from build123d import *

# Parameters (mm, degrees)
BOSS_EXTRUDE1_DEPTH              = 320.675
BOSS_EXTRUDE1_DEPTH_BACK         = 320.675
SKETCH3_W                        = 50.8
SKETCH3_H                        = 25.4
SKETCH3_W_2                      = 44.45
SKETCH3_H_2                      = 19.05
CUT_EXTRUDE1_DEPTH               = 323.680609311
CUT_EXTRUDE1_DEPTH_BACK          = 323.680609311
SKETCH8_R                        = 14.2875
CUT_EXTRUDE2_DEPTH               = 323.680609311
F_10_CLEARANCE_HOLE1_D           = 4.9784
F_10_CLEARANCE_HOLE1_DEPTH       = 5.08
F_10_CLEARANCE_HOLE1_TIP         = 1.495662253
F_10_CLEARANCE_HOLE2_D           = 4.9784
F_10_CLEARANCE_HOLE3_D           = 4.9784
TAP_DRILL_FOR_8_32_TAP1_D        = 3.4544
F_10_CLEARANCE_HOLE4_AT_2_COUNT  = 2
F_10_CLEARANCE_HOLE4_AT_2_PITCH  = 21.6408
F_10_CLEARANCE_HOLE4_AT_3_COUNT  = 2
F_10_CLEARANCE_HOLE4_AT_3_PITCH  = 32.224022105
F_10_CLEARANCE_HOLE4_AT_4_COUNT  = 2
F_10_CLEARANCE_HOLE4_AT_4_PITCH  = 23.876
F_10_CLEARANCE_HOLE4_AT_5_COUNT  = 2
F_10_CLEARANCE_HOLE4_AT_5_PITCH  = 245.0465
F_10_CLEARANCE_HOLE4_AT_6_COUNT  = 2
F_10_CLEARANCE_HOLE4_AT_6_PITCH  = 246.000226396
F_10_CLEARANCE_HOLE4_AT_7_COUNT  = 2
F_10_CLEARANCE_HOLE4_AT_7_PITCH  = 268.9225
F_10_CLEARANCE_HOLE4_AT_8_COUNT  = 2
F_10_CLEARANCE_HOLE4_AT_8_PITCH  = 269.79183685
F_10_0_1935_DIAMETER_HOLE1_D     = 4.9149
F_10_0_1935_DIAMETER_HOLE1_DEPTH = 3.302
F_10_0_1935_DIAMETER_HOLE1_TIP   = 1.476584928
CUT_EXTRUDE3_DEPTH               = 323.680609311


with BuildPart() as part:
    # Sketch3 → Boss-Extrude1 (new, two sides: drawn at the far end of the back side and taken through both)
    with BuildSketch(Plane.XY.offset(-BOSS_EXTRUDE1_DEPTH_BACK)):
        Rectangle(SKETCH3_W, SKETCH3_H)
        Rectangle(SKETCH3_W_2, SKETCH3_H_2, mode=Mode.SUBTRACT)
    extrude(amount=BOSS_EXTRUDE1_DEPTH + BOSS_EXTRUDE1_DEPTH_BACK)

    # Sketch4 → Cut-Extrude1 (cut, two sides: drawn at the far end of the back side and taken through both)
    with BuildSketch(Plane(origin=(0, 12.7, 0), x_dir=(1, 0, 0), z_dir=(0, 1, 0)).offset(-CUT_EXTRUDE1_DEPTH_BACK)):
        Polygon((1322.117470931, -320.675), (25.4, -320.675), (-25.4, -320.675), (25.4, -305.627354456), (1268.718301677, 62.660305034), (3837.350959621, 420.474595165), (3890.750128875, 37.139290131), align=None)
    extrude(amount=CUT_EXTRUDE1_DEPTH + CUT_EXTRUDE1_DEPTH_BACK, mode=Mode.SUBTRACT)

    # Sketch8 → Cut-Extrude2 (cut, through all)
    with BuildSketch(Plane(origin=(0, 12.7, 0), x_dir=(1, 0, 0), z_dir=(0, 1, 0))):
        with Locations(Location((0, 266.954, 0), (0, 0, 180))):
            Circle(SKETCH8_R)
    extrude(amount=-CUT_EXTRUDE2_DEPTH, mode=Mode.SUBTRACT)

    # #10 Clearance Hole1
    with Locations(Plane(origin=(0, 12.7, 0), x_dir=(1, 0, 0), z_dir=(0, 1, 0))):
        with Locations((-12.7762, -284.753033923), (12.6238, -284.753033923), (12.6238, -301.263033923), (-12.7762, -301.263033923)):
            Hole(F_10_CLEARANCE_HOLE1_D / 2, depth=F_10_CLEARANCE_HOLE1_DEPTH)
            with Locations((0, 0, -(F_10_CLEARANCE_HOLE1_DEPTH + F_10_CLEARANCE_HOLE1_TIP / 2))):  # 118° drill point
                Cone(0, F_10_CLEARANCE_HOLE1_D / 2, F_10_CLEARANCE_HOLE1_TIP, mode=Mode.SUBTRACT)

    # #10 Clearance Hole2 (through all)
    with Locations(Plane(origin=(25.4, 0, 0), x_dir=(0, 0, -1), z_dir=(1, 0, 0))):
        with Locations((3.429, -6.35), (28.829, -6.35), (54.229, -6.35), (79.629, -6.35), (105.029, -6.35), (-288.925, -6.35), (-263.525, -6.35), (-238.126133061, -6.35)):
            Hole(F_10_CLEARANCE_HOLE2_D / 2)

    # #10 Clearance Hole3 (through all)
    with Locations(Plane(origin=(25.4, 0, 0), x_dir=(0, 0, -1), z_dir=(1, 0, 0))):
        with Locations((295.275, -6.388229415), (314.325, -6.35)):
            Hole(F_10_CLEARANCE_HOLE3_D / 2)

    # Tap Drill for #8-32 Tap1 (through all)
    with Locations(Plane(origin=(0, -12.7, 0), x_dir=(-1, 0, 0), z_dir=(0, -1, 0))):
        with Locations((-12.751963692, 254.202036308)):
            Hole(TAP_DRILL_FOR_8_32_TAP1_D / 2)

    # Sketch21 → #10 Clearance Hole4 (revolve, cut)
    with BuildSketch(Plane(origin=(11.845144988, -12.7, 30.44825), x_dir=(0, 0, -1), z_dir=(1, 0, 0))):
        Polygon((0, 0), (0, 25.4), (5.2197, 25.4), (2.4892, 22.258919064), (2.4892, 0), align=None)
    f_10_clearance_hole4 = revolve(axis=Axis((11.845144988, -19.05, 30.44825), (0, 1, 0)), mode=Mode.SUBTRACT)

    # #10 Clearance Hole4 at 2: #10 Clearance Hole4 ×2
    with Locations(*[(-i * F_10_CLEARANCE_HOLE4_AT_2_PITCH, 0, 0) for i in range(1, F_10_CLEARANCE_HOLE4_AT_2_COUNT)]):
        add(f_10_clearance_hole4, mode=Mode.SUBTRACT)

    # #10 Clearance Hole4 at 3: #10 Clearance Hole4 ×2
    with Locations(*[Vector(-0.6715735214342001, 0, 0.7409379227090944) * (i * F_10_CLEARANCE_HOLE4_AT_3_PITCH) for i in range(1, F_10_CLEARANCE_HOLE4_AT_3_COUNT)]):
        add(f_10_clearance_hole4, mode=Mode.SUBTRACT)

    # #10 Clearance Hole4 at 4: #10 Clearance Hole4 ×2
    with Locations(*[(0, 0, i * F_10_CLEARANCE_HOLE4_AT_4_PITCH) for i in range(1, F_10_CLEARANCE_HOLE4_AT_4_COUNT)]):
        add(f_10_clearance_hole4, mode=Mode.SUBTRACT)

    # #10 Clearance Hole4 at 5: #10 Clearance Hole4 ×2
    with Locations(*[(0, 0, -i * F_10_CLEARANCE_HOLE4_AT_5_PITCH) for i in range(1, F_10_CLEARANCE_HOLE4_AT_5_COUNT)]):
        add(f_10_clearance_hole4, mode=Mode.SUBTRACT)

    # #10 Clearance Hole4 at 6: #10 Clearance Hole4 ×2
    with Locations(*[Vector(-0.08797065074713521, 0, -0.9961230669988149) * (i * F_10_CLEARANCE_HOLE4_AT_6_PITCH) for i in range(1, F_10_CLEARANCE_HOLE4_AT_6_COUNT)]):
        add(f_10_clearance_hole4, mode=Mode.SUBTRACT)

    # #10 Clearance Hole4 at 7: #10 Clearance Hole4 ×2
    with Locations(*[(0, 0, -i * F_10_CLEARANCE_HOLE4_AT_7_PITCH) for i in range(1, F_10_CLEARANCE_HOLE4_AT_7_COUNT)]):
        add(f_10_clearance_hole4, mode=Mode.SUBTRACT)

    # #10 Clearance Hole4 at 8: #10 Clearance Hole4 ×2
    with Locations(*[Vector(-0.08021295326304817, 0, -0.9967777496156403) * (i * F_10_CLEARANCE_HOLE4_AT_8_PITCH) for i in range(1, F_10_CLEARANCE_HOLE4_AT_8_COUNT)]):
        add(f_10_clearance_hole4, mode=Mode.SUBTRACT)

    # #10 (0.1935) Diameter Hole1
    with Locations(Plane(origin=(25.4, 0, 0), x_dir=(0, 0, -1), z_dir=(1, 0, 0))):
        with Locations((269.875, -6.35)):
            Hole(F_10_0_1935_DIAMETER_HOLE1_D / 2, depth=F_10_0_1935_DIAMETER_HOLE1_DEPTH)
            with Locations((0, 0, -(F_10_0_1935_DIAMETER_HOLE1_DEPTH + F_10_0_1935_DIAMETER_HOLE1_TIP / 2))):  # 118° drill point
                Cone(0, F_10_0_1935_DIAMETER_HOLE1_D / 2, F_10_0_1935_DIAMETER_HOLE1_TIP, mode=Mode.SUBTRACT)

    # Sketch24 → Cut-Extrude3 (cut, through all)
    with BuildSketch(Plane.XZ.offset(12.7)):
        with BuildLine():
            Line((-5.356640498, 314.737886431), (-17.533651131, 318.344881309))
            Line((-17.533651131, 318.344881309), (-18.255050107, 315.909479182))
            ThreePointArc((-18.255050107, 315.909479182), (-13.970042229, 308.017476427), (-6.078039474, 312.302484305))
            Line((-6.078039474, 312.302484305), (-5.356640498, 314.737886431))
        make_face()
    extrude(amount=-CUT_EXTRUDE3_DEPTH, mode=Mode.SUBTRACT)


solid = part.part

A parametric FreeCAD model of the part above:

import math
import FreeCAD as App
import Part
import Sketcher

V = App.Vector
Q = App.Units.Quantity


def add_polygon(sketch, points):
    """Adds a closed chain of lines whose ends are joined by coincident constraints."""
    first, n = sketch.GeometryCount, len(points)
    for a, b in zip(points, points[1:] + points[:1]):
        sketch.addGeometry(Part.LineSegment(App.Vector(*a, 0), App.Vector(*b, 0)), False)
    for i in range(n):
        sketch.addConstraint(Sketcher.Constraint("Coincident", first + i, 2, first + (i + 1) % n, 1))

doc = App.newDocument("Part")
body = doc.addObject("PartDesign::Body", "Body")

sketch1 = doc.addObject("Sketcher::SketchObject", "Sketch")
body.addObject(sketch1)
sketch1.AttachmentSupport = (doc.XY_Plane, [""])
sketch1.MapMode = "FlatFace"
add_polygon(sketch1, [(-25.4, 12.7), (-25.4, -12.7), (25.4, -12.7), (25.4, 12.7)])
add_polygon(sketch1, [(22.225, -9.525), (-22.225, -9.525), (-22.225, 9.525), (22.225, 9.525)])
sketch1.addConstraint(Sketcher.Constraint("Vertical", 0))
sketch1.addConstraint(Sketcher.Constraint("Horizontal", 1))
sketch1.addConstraint(Sketcher.Constraint("Vertical", 2))
sketch1.addConstraint(Sketcher.Constraint("Horizontal", 3))
sketch1.addConstraint(Sketcher.Constraint("Horizontal", 4))
sketch1.addConstraint(Sketcher.Constraint("Vertical", 5))
sketch1.addConstraint(Sketcher.Constraint("Horizontal", 6))
sketch1.addConstraint(Sketcher.Constraint("Vertical", 7))
sketch1.addConstraint(Sketcher.Constraint("Symmetric", 0, 2, 2, 2, -1, 1))
sketch1.addConstraint(Sketcher.Constraint("Symmetric", 4, 2, 6, 2, -1, 1))
sketch1.addConstraint(Sketcher.Constraint("DistanceX", 1, 1, 1, 2, Q("2 in")))
sketch1.addConstraint(Sketcher.Constraint("DistanceY", 0, 2, 0, 1, Q("1 in")))
sketch1.addConstraint(Sketcher.Constraint("DistanceX", 4, 2, 4, 1, Q("1.75 in")))
sketch1.addConstraint(Sketcher.Constraint("DistanceY", 5, 1, 5, 2, Q("0.75 in")))
pad1 = doc.addObject("PartDesign::Pad", "Pad")
body.addObject(pad1)
pad1.Profile = sketch1
pad1.Type = "TwoLengths"
pad1.Length = Q("12.625 in")
pad1.Length2 = Q("12.625 in")

sketch2 = doc.addObject("Sketcher::SketchObject", "Sketch001")
body.addObject(sketch2)
sketch2.AttachmentSupport = (doc.XZ_Plane, [""])
sketch2.MapMode = "FlatFace"
sketch2.AttachmentOffset = App.Placement(V(0, 0, -0.5 * 25.4), App.Rotation())
add_polygon(sketch2, [(-25.4, 320.675), (1322.117471, 320.675), (3890.750129, -37.13929), (3837.35096, -420.474595), (1268.718302, -62.660305), (25.4, 305.627354)])
sketch2.addConstraint(Sketcher.Constraint("Horizontal", 0))
sketch2.addConstraint(Sketcher.Constraint("Perpendicular", 1, 2))
sketch2.addConstraint(Sketcher.Constraint("Perpendicular", 2, 3))
sketch2.addConstraint(Sketcher.Constraint("Parallel", 4, 5))
sketch2.addConstraint(Sketcher.Constraint("Equal", 1, 3))
sketch2.addConstraint(Sketcher.Constraint("DistanceX", -1, 1, 4, 2, Q("1 in")))
sketch2.addConstraint(Sketcher.Constraint("DistanceX", 5, 2, -1, 1, Q("1 in")))
sketch2.addConstraint(Sketcher.Constraint("Angle", 4, Q("163.5 deg")))
sketch2.addConstraint(Sketcher.Constraint("DistanceY", -1, 1, 0, 2, Q("12.625 in")))
sketch2.addConstraint(Sketcher.Constraint("DistanceX", 0, 1, 0, 2, 1347.517471))
sketch2.addConstraint(Sketcher.Constraint("DistanceX", -1, 1, 3, 2, 1268.718302))
sketch2.addConstraint(Sketcher.Constraint("Distance", 1, 2593.434942))
pocket1 = doc.addObject("PartDesign::Pocket", "Pocket")
body.addObject(pocket1)
pocket1.Profile = sketch2
pocket1.Type = "ThroughAll"
pocket1.Midplane = True

sketch3 = doc.addObject("Sketcher::SketchObject", "Sketch002")
body.addObject(sketch3)
sketch3.AttachmentSupport = (doc.XZ_Plane, [""])
sketch3.MapMode = "FlatFace"
sketch3.AttachmentOffset = App.Placement(V(0, 0, -0.5 * 25.4), App.Rotation())
sketch3.addGeometry(Part.Circle(V(0, -266.954, 0), V(0, 0, 1), 14.2875), False)
sketch3.addConstraint(Sketcher.Constraint("PointOnObject", 0, 3, -2))
sketch3.addConstraint(Sketcher.Constraint("Diameter", 0, Q("1.125 in")))
sketch3.addConstraint(Sketcher.Constraint("DistanceY", 0, 3, -1, 1, Q("10.51 in")))
pocket2 = doc.addObject("PartDesign::Pocket", "Pocket001")
body.addObject(pocket2)
pocket2.Profile = sketch3
pocket2.Type = "ThroughAll"
pocket2.Reversed = True

sketch4 = doc.addObject("Sketcher::SketchObject", "Sketch003")
body.addObject(sketch4)
sketch4.AttachmentSupport = (doc.XZ_Plane, [""])
sketch4.MapMode = "FlatFace"
sketch4.AttachmentOffset = App.Placement(V(0, 0, -0.5 * 25.4), App.Rotation())
sketch4.addGeometry(Part.Circle(V(-12.7762, 284.753034, 0), V(0, 0, 1), 2.4892), False)
sketch4.addGeometry(Part.Circle(V(12.6238, 284.753034, 0), V(0, 0, 1), 2.4892), False)
sketch4.addGeometry(Part.Circle(V(12.6238, 301.263034, 0), V(0, 0, 1), 2.4892), False)
sketch4.addGeometry(Part.Circle(V(-12.7762, 301.263034, 0), V(0, 0, 1), 2.4892), False)
sketch4.addConstraint(Sketcher.Constraint("Equal", 0, 1))
sketch4.addConstraint(Sketcher.Constraint("Equal", 1, 2))
sketch4.addConstraint(Sketcher.Constraint("Equal", 2, 3))
sketch4.addConstraint(Sketcher.Constraint("Horizontal", 0, 3, 1, 3))
sketch4.addConstraint(Sketcher.Constraint("Horizontal", 2, 3, 3, 3))
sketch4.addConstraint(Sketcher.Constraint("Vertical", 1, 3, 2, 3))
sketch4.addConstraint(Sketcher.Constraint("Vertical", 0, 3, 3, 3))
sketch4.addConstraint(Sketcher.Constraint("Diameter", 0, Q("0.196 in")))
sketch4.addConstraint(Sketcher.Constraint("DistanceX", 0, 3, 1, 3, Q("1 in")))
sketch4.addConstraint(Sketcher.Constraint("DistanceY", 1, 3, 2, 3, Q("0.65 in")))
sketch4.addConstraint(Sketcher.Constraint("DistanceX", 0, 3, -1, 1, Q("0.503 in")))
sketch4.addConstraint(Sketcher.Constraint("DistanceY", -1, 1, 0, 3, 284.753034))
doc.recompute()
hole = doc.addObject("PartDesign::Hole", "Hole")
body.addObject(hole)
hole.Profile = sketch4
hole.ThreadType = "None"
hole.Diameter = Q("0.196 in")
hole.DepthType = "Dimension"
hole.Depth = Q("0.2 in")
hole.DrillPoint = "Angled"
hole.DrillPointAngle = 118
hole.Reversed = True

sketch5 = doc.addObject("Sketcher::SketchObject", "Sketch004")
body.addObject(sketch5)
sketch5.AttachmentSupport = (doc.YZ_Plane, [""])
sketch5.MapMode = "FlatFace"
sketch5.AttachmentOffset = App.Placement(V(0, 0, 1 * 25.4), App.Rotation())
sketch5.addGeometry(Part.Circle(V(-6.35, -3.429, 0), V(0, 0, 1), 2.4892), False)
sketch5.addGeometry(Part.Circle(V(-6.35, -28.829, 0), V(0, 0, 1), 2.4892), False)
sketch5.addGeometry(Part.Circle(V(-6.35, -54.229, 0), V(0, 0, 1), 2.4892), False)
sketch5.addGeometry(Part.Circle(V(-6.35, -79.629, 0), V(0, 0, 1), 2.4892), False)
sketch5.addGeometry(Part.Circle(V(-6.35, -105.029, 0), V(0, 0, 1), 2.4892), False)
sketch5.addGeometry(Part.Circle(V(-6.35, 288.925, 0), V(0, 0, 1), 2.4892), False)
sketch5.addGeometry(Part.Circle(V(-6.35, 263.525, 0), V(0, 0, 1), 2.4892), False)
sketch5.addGeometry(Part.Circle(V(-6.35, 238.126133, 0), V(0, 0, 1), 2.4892), False)
sketch5.addConstraint(Sketcher.Constraint("Equal", 0, 1))
sketch5.addConstraint(Sketcher.Constraint("Equal", 1, 2))
sketch5.addConstraint(Sketcher.Constraint("Equal", 2, 3))
sketch5.addConstraint(Sketcher.Constraint("Equal", 3, 4))
sketch5.addConstraint(Sketcher.Constraint("Equal", 4, 5))
sketch5.addConstraint(Sketcher.Constraint("Equal", 5, 6))
sketch5.addConstraint(Sketcher.Constraint("Equal", 6, 7))
sketch5.addConstraint(Sketcher.Constraint("Vertical", 0, 3, 1, 3))
sketch5.addConstraint(Sketcher.Constraint("Vertical", 1, 3, 2, 3))
sketch5.addConstraint(Sketcher.Constraint("Vertical", 2, 3, 3, 3))
sketch5.addConstraint(Sketcher.Constraint("Vertical", 3, 3, 4, 3))
sketch5.addConstraint(Sketcher.Constraint("Vertical", 4, 3, 5, 3))
sketch5.addConstraint(Sketcher.Constraint("Vertical", 5, 3, 6, 3))
sketch5.addConstraint(Sketcher.Constraint("Vertical", 6, 3, 7, 3))
sketch5.addConstraint(Sketcher.Constraint("Diameter", 0, Q("0.196 in")))
sketch5.addConstraint(Sketcher.Constraint("DistanceY", 1, 3, 0, 3, Q("1 in")))
sketch5.addConstraint(Sketcher.Constraint("DistanceY", 2, 3, 1, 3, Q("1 in")))
sketch5.addConstraint(Sketcher.Constraint("DistanceY", 3, 3, 2, 3, Q("1 in")))
sketch5.addConstraint(Sketcher.Constraint("DistanceY", 4, 3, 3, 3, Q("1 in")))
sketch5.addConstraint(Sketcher.Constraint("DistanceY", 6, 3, 5, 3, Q("1 in")))
sketch5.addConstraint(Sketcher.Constraint("DistanceX", 0, 3, -1, 1, Q("0.25 in")))
sketch5.addConstraint(Sketcher.Constraint("DistanceY", 0, 3, 5, 3, Q("11.51 in")))
sketch5.addConstraint(Sketcher.Constraint("DistanceY", 0, 3, -1, 1, Q("0.135 in")))
sketch5.addConstraint(Sketcher.Constraint("DistanceY", -1, 1, 7, 3, 238.126133))
doc.recompute()
hole2 = doc.addObject("PartDesign::Hole", "Hole001")
body.addObject(hole2)
hole2.Profile = sketch5
hole2.ThreadType = "None"
hole2.Diameter = Q("0.196 in")
hole2.DepthType = "ThroughAll"

sketch6 = doc.addObject("Sketcher::SketchObject", "Sketch005")
body.addObject(sketch6)
sketch6.AttachmentSupport = (doc.YZ_Plane, [""])
sketch6.MapMode = "FlatFace"
sketch6.AttachmentOffset = App.Placement(V(0, 0, 1 * 25.4), App.Rotation())
sketch6.addGeometry(Part.Circle(V(-6.388229, -295.275, 0), V(0, 0, 1), 2.4892), False)
sketch6.addGeometry(Part.Circle(V(-6.35, -314.325, 0), V(0, 0, 1), 2.4892), False)
sketch6.addConstraint(Sketcher.Constraint("Equal", 0, 1))
sketch6.addConstraint(Sketcher.Constraint("Diameter", 0, Q("0.196 in")))
sketch6.addConstraint(Sketcher.Constraint("DistanceX", 1, 3, -1, 1, Q("0.25 in")))
sketch6.addConstraint(Sketcher.Constraint("DistanceY", 1, 3, 0, 3, Q("0.75 in")))
sketch6.addConstraint(Sketcher.Constraint("DistanceY", 0, 3, -1, 1, Q("11.625 in")))
sketch6.addConstraint(Sketcher.Constraint("DistanceX", 0, 3, -1, 1, 6.388229))
doc.recompute()
hole3 = doc.addObject("PartDesign::Hole", "Hole002")
body.addObject(hole3)
hole3.Profile = sketch6
hole3.ThreadType = "None"
hole3.Diameter = Q("0.196 in")
hole3.DepthType = "ThroughAll"

sketch7 = doc.addObject("Sketcher::SketchObject", "Sketch006")
body.addObject(sketch7)
sketch7.AttachmentSupport = (doc.XZ_Plane, [""])
sketch7.MapMode = "FlatFace"
sketch7.AttachmentOffset = App.Placement(V(0, 0, 0.5 * 25.4), App.Rotation())
sketch7.addGeometry(Part.Circle(V(12.751964, -254.202036, 0), V(0, 0, 1), 1.7272), False)
sketch7.addConstraint(Sketcher.Constraint("Diameter", 0, Q("0.136 in")))
sketch7.addConstraint(Sketcher.Constraint("DistanceX", -1, 1, 0, 3, 12.751964))
sketch7.addConstraint(Sketcher.Constraint("DistanceY", 0, 3, -1, 1, 254.202036))
doc.recompute()
hole4 = doc.addObject("PartDesign::Hole", "Hole003")
body.addObject(hole4)
hole4.Profile = sketch7
hole4.ThreadType = "None"
hole4.Diameter = Q("0.136 in")
hole4.DepthType = "ThroughAll"

sketch8 = doc.addObject("Sketcher::SketchObject", "Sketch007")
body.addObject(sketch8)
sketch8.AttachmentSupport = (doc.YZ_Plane, [""])
sketch8.MapMode = "FlatFace"
sketch8.AttachmentOffset = App.Placement(V(0, 0, 11.845145), App.Rotation())
add_polygon(sketch8, [(12.7, 30.44825), (-12.7, 30.44825), (-12.7, 27.95905), (9.558919, 27.95905), (12.7, 25.22855)])
sketch8.addGeometry(Part.LineSegment(V(-12.7, 30.44825, 0), V(12.7, 30.44825, 0)), True)
sketch8.addConstraint(Sketcher.Constraint("Horizontal", 0))
sketch8.addConstraint(Sketcher.Constraint("Vertical", 1))
sketch8.addConstraint(Sketcher.Constraint("Horizontal", 2))
sketch8.addConstraint(Sketcher.Constraint("Vertical", 4))
sketch8.addConstraint(Sketcher.Constraint("Horizontal", 5))
sketch8.addConstraint(Sketcher.Constraint("Coincident", 5, 1, 0, 2))
sketch8.addConstraint(Sketcher.Constraint("Vertical", 3, 2, 5, 2))
sketch8.addConstraint(Sketcher.Constraint("DistanceX", 0, 2, 0, 1, Q("1 in")))
sketch8.addConstraint(Sketcher.Constraint("Angle", 3, Q("-41 deg")))
sketch8.addConstraint(Sketcher.Constraint("DistanceX", 0, 2, -1, 1, Q("0.5 in")))
sketch8.addConstraint(Sketcher.Constraint("DistanceY", 1, 2, 1, 1, Q("0.098 in")))
sketch8.addConstraint(Sketcher.Constraint("DistanceY", 4, 1, 4, 2, Q("0.2055 in")))
sketch8.addConstraint(Sketcher.Constraint("DistanceY", -1, 1, 0, 2, 30.44825))
groove = doc.addObject("PartDesign::Groove", "Groove")
body.addObject(groove)
groove.Profile = sketch8
groove.ReferenceAxis = (sketch8, ["Axis0"])
groove.Angle = 360
doc.recompute()

linearpattern = doc.addObject("PartDesign::LinearPattern", "LinearPattern")
body.addObject(linearpattern)
linearpattern.Originals = [groove]
linearpattern.Direction = (doc.X_Axis, [""])
linearpattern.Mode = "offset"
linearpattern.Offset = Q("0.852 in")
linearpattern.Occurrences = 2
linearpattern.Reversed = True
body.Tip = linearpattern
doc.recompute()

datumline = doc.addObject("PartDesign::Line", "DatumLine")
body.addObject(datumline)
datumline.Placement = App.Placement(V(0, 0, 0), App.Rotation(V(0, 0, 1), V(-0.671573521, 0, 0.740937923)))
linearpattern2 = doc.addObject("PartDesign::LinearPattern", "LinearPattern001")
body.addObject(linearpattern2)
linearpattern2.Originals = [groove]
linearpattern2.Direction = (datumline, [""])
linearpattern2.Mode = "offset"
linearpattern2.Offset = 32.224022
linearpattern2.Occurrences = 2
body.Tip = linearpattern2
doc.recompute()

linearpattern3 = doc.addObject("PartDesign::LinearPattern", "LinearPattern002")
body.addObject(linearpattern3)
linearpattern3.Originals = [groove]
linearpattern3.Direction = (doc.Z_Axis, [""])
linearpattern3.Mode = "offset"
linearpattern3.Offset = Q("0.94 in")
linearpattern3.Occurrences = 2
body.Tip = linearpattern3
doc.recompute()

linearpattern4 = doc.addObject("PartDesign::LinearPattern", "LinearPattern003")
body.addObject(linearpattern4)
linearpattern4.Originals = [groove]
linearpattern4.Direction = (doc.Z_Axis, [""])
linearpattern4.Mode = "offset"
linearpattern4.Offset = Q("9.6475 in")
linearpattern4.Occurrences = 2
linearpattern4.Reversed = True
body.Tip = linearpattern4
doc.recompute()

datumline2 = doc.addObject("PartDesign::Line", "DatumLine001")
body.addObject(datumline2)
datumline2.Placement = App.Placement(V(0, 0, 0), App.Rotation(V(0, 0, 1), V(-0.087970651, 0, -0.996123067)))
linearpattern5 = doc.addObject("PartDesign::LinearPattern", "LinearPattern004")
body.addObject(linearpattern5)
linearpattern5.Originals = [groove]
linearpattern5.Direction = (datumline2, [""])
linearpattern5.Mode = "offset"
linearpattern5.Offset = 246.000226
linearpattern5.Occurrences = 2
body.Tip = linearpattern5
doc.recompute()

linearpattern6 = doc.addObject("PartDesign::LinearPattern", "LinearPattern005")
body.addObject(linearpattern6)
linearpattern6.Originals = [groove]
linearpattern6.Direction = (doc.Z_Axis, [""])
linearpattern6.Mode = "offset"
linearpattern6.Offset = Q("10.5875 in")
linearpattern6.Occurrences = 2
linearpattern6.Reversed = True
body.Tip = linearpattern6
doc.recompute()

datumline3 = doc.addObject("PartDesign::Line", "DatumLine002")
body.addObject(datumline3)
datumline3.Placement = App.Placement(V(0, 0, 0), App.Rotation(V(0, 0, 1), V(-0.080212953, 0, -0.99677775)))
linearpattern7 = doc.addObject("PartDesign::LinearPattern", "LinearPattern006")
body.addObject(linearpattern7)
linearpattern7.Originals = [groove]
linearpattern7.Direction = (datumline3, [""])
linearpattern7.Mode = "offset"
linearpattern7.Offset = 269.791837
linearpattern7.Occurrences = 2
body.Tip = linearpattern7

sketch9 = doc.addObject("Sketcher::SketchObject", "Sketch008")
body.addObject(sketch9)
sketch9.AttachmentSupport = (doc.YZ_Plane, [""])
sketch9.MapMode = "FlatFace"
sketch9.AttachmentOffset = App.Placement(V(0, 0, 1 * 25.4), App.Rotation())
sketch9.addGeometry(Part.Circle(V(-6.35, -269.875, 0), V(0, 0, 1), 2.45745), False)
sketch9.addConstraint(Sketcher.Constraint("Diameter", 0, Q("0.1935 in")))
sketch9.addConstraint(Sketcher.Constraint("DistanceX", 0, 3, -1, 1, Q("0.25 in")))
sketch9.addConstraint(Sketcher.Constraint("DistanceY", 0, 3, -1, 1, Q("10.625 in")))
doc.recompute()
hole5 = doc.addObject("PartDesign::Hole", "Hole004")
body.addObject(hole5)
hole5.Profile = sketch9
hole5.ThreadType = "None"
hole5.Diameter = Q("0.1935 in")
hole5.DepthType = "Dimension"
hole5.Depth = Q("0.13 in")
hole5.DrillPoint = "Angled"
hole5.DrillPointAngle = 118

sketch10 = doc.addObject("Sketcher::SketchObject", "Sketch009")
body.addObject(sketch10)
sketch10.AttachmentSupport = (doc.XZ_Plane, [""])
sketch10.MapMode = "FlatFace"
sketch10.AttachmentOffset = App.Placement(V(0, 0, 0.5 * 25.4), App.Rotation())
sketch10.addGeometry(Part.LineSegment(V(-5.35664, 314.737886, 0), V(-17.533651, 318.344881, 0)), False)
sketch10.addGeometry(Part.LineSegment(V(-17.533651, 318.344881, 0), V(-18.25505, 315.909479, 0)), False)
sketch10.addGeometry(Part.ArcOfCircle(Part.Circle(V(-12.166545, 314.105982, 0), V(0, 0, 1), 6.35), math.radians(163.5), math.radians(343.5)), False)
sketch10.addGeometry(Part.LineSegment(V(-6.078039, 312.302484, 0), V(-5.35664, 314.737886, 0)), False)
sketch10.addConstraint(Sketcher.Constraint("Coincident", 0, 2, 1, 1))
sketch10.addConstraint(Sketcher.Constraint("Tangent", 1, 2, 2, 1))
sketch10.addConstraint(Sketcher.Constraint("Tangent", 2, 2, 3, 1))
sketch10.addConstraint(Sketcher.Constraint("Coincident", 3, 2, 0, 1))
sketch10.addConstraint(Sketcher.Constraint("Perpendicular", 0, 1))
sketch10.addConstraint(Sketcher.Constraint("Parallel", 1, 3))
sketch10.addConstraint(Sketcher.Constraint("Radius", 2, Q("0.25 in")))
sketch10.addConstraint(Sketcher.Constraint("Distance", 1, Q("0.1 in")))
sketch10.addConstraint(Sketcher.Constraint("Angle", 0, Q("163.5 deg")))
sketch10.addConstraint(Sketcher.Constraint("DistanceY", -1, 1, 2, 3, 314.105982))
sketch10.addConstraint(Sketcher.Constraint("DistanceX", 0, 2, -1, 1, 17.533651))
pocket3 = doc.addObject("PartDesign::Pocket", "Pocket002")
body.addObject(pocket3)
pocket3.Profile = sketch10
pocket3.Type = "ThroughAll"

doc.recompute()
